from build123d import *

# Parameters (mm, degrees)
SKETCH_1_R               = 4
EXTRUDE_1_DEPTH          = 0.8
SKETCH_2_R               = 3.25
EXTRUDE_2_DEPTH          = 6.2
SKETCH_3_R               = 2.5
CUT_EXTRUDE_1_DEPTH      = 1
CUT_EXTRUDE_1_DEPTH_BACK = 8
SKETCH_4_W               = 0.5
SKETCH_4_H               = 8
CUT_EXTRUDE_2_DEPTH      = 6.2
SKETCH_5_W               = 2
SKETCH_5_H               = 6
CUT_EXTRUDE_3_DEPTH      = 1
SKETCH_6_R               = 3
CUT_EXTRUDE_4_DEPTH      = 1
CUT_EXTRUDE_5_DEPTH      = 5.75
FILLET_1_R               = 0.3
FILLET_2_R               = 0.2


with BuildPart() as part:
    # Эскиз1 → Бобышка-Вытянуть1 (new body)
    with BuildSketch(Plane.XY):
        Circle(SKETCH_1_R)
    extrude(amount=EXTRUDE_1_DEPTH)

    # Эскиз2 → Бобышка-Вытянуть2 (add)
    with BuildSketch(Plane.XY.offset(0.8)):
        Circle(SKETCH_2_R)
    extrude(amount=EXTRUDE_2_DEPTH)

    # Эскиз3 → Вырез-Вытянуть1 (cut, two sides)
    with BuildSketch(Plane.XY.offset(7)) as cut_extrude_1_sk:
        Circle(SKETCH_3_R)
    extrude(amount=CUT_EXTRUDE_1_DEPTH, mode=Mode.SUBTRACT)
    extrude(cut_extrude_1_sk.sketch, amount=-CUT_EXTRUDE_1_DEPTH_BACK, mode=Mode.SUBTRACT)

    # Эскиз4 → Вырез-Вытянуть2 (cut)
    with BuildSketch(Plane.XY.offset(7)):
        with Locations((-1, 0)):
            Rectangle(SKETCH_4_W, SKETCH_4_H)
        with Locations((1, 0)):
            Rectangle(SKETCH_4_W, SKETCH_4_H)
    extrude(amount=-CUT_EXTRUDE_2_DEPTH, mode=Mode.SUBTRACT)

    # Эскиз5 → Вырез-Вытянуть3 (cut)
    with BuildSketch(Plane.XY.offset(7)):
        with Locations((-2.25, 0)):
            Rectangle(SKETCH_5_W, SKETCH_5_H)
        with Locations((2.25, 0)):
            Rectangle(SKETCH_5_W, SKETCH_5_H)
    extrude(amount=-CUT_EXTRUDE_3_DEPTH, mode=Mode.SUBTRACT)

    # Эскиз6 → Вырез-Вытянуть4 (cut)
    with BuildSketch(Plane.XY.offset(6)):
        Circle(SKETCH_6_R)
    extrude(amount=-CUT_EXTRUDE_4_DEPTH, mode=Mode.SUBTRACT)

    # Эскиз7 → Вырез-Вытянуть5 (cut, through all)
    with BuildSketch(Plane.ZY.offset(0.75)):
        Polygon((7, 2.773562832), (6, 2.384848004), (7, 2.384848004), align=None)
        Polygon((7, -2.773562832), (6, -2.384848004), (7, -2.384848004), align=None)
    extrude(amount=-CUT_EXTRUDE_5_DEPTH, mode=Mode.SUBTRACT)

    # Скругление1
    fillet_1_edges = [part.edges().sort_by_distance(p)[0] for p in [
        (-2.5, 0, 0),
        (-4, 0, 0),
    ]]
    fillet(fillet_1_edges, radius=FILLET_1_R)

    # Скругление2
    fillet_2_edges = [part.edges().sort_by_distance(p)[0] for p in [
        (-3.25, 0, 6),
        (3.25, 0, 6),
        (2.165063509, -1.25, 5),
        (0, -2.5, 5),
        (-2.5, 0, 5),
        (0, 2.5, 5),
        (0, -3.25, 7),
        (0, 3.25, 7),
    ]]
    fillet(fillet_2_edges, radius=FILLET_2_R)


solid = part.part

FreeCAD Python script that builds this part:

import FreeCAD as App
import Part
import Sketcher
Q = App.Units.Quantity


def edges_at(feature, points):
    """Names of the edges that pass closest to the given points."""
    edges = feature.Shape.Edges
    near = lambda p: min(range(len(edges)), key=lambda i: edges[i].distToShape(Part.Vertex(*p))[0])
    return sorted({f"Edge{near(p) + 1}" for p in points})


def add_polygon(sketch, points):
    """Adds a closed chain of lines whose ends are joined by coincident constraints."""
    first, n = sketch.GeometryCount, len(points)
    for a, b in zip(points, points[1:] + points[:1]):
        sketch.addGeometry(Part.LineSegment(App.Vector(*a, 0), App.Vector(*b, 0)), False)
    for i in range(n):
        sketch.addConstraint(Sketcher.Constraint("Coincident", first + i, 2, first + (i + 1) % n, 1))

doc = App.newDocument("Part")
body = doc.addObject("PartDesign::Body", "Body")

sketch1 = body.newObject("Sketcher::SketchObject", "Sketch")
sketch1.AttachmentSupport = (doc.getObject("XY_Plane"), [""])
sketch1.MapMode = "FlatFace"
sketch1.addGeometry(Part.Circle(App.Vector(0, 0, 0), App.Vector(0, 0, 1), 4), False)
sketch1.addConstraint([
    Sketcher.Constraint("Coincident", 0, 3, -1, 1),
    Sketcher.Constraint("Diameter", 0, Q("8 mm")),
])
pad1 = body.newObject("PartDesign::Pad", "Pad")
pad1.Profile = sketch1
pad1.Length = 0.8

sketch2 = body.newObject("Sketcher::SketchObject", "Sketch001")
sketch2.AttachmentSupport = (doc.getObject("XY_Plane"), [""])
sketch2.MapMode = "FlatFace"
sketch2.AttachmentOffset = App.Placement(App.Vector(0, 0, 0.8), App.Rotation())
sketch2.addGeometry(Part.Circle(App.Vector(0, 0, 0), App.Vector(0, 0, 1), 3.2), False)
sketch2.addConstraint([
    Sketcher.Constraint("Coincident", 0, 3, -1, 1),
    Sketcher.Constraint("Diameter", 0, Q("6.5 mm")),
])
pad2 = body.newObject("PartDesign::Pad", "Pad001")
pad2.Profile = sketch2
pad2.Length = 6.2

sketch3 = body.newObject("Sketcher::SketchObject", "Sketch002")
sketch3.AttachmentSupport = (doc.getObject("XY_Plane"), [""])
sketch3.MapMode = "FlatFace"
sketch3.AttachmentOffset = App.Placement(App.Vector(0, 0, 7), App.Rotation())
sketch3.addGeometry(Part.Circle(App.Vector(0, 0, 0), App.Vector(0, 0, 1), 2.5), False)
sketch3.addConstraint([
    Sketcher.Constraint("Coincident", 0, 3, -1, 1),
    Sketcher.Constraint("Diameter", 0, Q("5 mm")),
])
pocket1 = body.newObject("PartDesign::Pocket", "Pocket")
pocket1.Profile = sketch3
pocket1.Type = "ThroughAll"
pocket1.Midplane = True

sketch4 = body.newObject("Sketcher::SketchObject", "Sketch003")
sketch4.AttachmentSupport = (doc.getObject("XY_Plane"), [""])
sketch4.MapMode = "FlatFace"
sketch4.AttachmentOffset = App.Placement(App.Vector(0, 0, 7), App.Rotation())
add_polygon(sketch4, [(-1.2, 4), (-1.2, -4), (-0.8, -4), (-0.8, 4)])
add_polygon(sketch4, [(0.8, 4), (0.8, -4), (1.2, -4), (1.2, 4)])
sketch4.addConstraint([
    Sketcher.Constraint("Vertical", 0),
    Sketcher.Constraint("Horizontal", 1),
    Sketcher.Constraint("Vertical", 2),
    Sketcher.Constraint("Horizontal", 3),
    Sketcher.Constraint("Vertical", 4),
    Sketcher.Constraint("Horizontal", 5),
    Sketcher.Constraint("Vertical", 6),
    Sketcher.Constraint("Horizontal", 7),
    Sketcher.Constraint("Symmetric", 2, 2, 4, 2, -1, 1),
    Sketcher.Constraint("Symmetric", 0, 2, 6, 2, -1, 1),
    Sketcher.Constraint("Horizontal", 1, 2, 4, 2),
    Sketcher.Constraint("DistanceY", 0, 2, 0, 1, Q("8 mm")),
    Sketcher.Constraint("DistanceX", 1, 1, 1, 2, Q("0.5 mm")),
    Sketcher.Constraint("DistanceX", 0, 2, 4, 2, Q("2 mm")),
])
pocket2 = body.newObject("PartDesign::Pocket", "Pocket001")
pocket2.Profile = sketch4
pocket2.Length = 6.2

sketch5 = body.newObject("Sketcher::SketchObject", "Sketch004")
sketch5.AttachmentSupport = (doc.getObject("XY_Plane"), [""])
sketch5.MapMode = "FlatFace"
sketch5.AttachmentOffset = App.Placement(App.Vector(0, 0, 7), App.Rotation())
add_polygon(sketch5, [(-3.2, 3), (-3.2, -3), (-1.2, -3), (-1.2, 3)])
add_polygon(sketch5, [(1.2, 3), (1.2, -3), (3.2, -3), (3.2, 3)])
sketch5.addConstraint([
    Sketcher.Constraint("Vertical", 0),
    Sketcher.Constraint("Horizontal", 1),
    Sketcher.Constraint("Vertical", 2),
    Sketcher.Constraint("Horizontal", 3),
    Sketcher.Constraint("Vertical", 4),
    Sketcher.Constraint("Horizontal", 5),
    Sketcher.Constraint("Vertical", 6),
    Sketcher.Constraint("Horizontal", 7),
    Sketcher.Constraint("Symmetric", 2, 2, 4, 2, -1, 1),
    Sketcher.Constraint("Symmetric", 0, 2, 6, 2, -1, 1),
    Sketcher.Constraint("Horizontal", 1, 2, 4, 2),
    Sketcher.Constraint("DistanceX", 1, 1, 1, 2, Q("2 mm")),
    Sketcher.Constraint("DistanceY", 0, 2, 0, 1, Q("6 mm")),
    Sketcher.Constraint("DistanceX", 1, 2, 4, 2, Q("2.5 mm")),
])
pocket3 = body.newObject("PartDesign::Pocket", "Pocket002")
pocket3.Profile = sketch5
pocket3.Length = 1

sketch6 = body.newObject("Sketcher::SketchObject", "Sketch005")
sketch6.AttachmentSupport = (doc.getObject("XY_Plane"), [""])
sketch6.MapMode = "FlatFace"
sketch6.AttachmentOffset = App.Placement(App.Vector(0, 0, 6), App.Rotation())
sketch6.addGeometry(Part.Circle(App.Vector(0, 0, 0), App.Vector(0, 0, 1), 3), False)
sketch6.addConstraint([
    Sketcher.Constraint("Coincident", 0, 3, -1, 1),
    Sketcher.Constraint("Diameter", 0, Q("6 mm")),
])
pocket4 = body.newObject("PartDesign::Pocket", "Pocket003")
pocket4.Profile = sketch6
pocket4.Length = 1

sketch7 = body.newObject("Sketcher::SketchObject", "Sketch006")
sketch7.AttachmentSupport = (doc.getObject("YZ_Plane"), [""])
sketch7.MapMode = "FlatFace"
sketch7.AttachmentOffset = App.Placement(App.Vector(0, 0, -0.75), App.Rotation())
add_polygon(sketch7, [(2.77, 7), (2.38, 6), (2.38, 7)])
add_polygon(sketch7, [(-2.38, 6), (-2.77, 7), (-2.38, 7)])
sketch7.addConstraint([
    Sketcher.Constraint("Vertical", 1),
    Sketcher.Constraint("Horizontal", 2),
    Sketcher.Constraint("Horizontal", 4),
    Sketcher.Constraint("Vertical", 5),
    Sketcher.Constraint("Symmetric", 2, 2, 3, 2, -2),
    Sketcher.Constraint("Symmetric", 0, 2, 5, 2, -2),
    Sketcher.Constraint("DistanceY", 1, 1, 1, 2, Q("1 mm")),
    Sketcher.Constraint("DistanceY", -1, 1, 0, 2, Q("6 mm")),
    Sketcher.Constraint("DistanceX", 2, 1, 2, 2, Q("0.388715 mm")),
    Sketcher.Constraint("DistanceX", -1, 1, 0, 2, Q("2.384848 mm")),
])
pocket5 = body.newObject("PartDesign::Pocket", "Pocket004")
pocket5.Profile = sketch7
pocket5.Type = "ThroughAll"
pocket5.Reversed = True
doc.recompute()

fillet = body.newObject("PartDesign::Fillet", "Fillet")
fillet.Base = (pocket5, edges_at(pocket5, [(-2.5, 0, 0), (-4, 0, 0)]))
fillet.Radius = 0.3
doc.recompute()

fillet2 = body.newObject("PartDesign::Fillet", "Fillet001")
fillet2.Base = (fillet, edges_at(fillet, [
    (-3.25, 0, 6),
    (3.25, 0, 6),
    (2.165, -1.25, 5),
    (0, -2.5, 5),
    (-2.5, 0, 5),
    (0, 2.5, 5),
    (0, -3.25, 7),
    (0, 3.25, 7),
]))
fillet2.Radius = 0.2

doc.recompute()
